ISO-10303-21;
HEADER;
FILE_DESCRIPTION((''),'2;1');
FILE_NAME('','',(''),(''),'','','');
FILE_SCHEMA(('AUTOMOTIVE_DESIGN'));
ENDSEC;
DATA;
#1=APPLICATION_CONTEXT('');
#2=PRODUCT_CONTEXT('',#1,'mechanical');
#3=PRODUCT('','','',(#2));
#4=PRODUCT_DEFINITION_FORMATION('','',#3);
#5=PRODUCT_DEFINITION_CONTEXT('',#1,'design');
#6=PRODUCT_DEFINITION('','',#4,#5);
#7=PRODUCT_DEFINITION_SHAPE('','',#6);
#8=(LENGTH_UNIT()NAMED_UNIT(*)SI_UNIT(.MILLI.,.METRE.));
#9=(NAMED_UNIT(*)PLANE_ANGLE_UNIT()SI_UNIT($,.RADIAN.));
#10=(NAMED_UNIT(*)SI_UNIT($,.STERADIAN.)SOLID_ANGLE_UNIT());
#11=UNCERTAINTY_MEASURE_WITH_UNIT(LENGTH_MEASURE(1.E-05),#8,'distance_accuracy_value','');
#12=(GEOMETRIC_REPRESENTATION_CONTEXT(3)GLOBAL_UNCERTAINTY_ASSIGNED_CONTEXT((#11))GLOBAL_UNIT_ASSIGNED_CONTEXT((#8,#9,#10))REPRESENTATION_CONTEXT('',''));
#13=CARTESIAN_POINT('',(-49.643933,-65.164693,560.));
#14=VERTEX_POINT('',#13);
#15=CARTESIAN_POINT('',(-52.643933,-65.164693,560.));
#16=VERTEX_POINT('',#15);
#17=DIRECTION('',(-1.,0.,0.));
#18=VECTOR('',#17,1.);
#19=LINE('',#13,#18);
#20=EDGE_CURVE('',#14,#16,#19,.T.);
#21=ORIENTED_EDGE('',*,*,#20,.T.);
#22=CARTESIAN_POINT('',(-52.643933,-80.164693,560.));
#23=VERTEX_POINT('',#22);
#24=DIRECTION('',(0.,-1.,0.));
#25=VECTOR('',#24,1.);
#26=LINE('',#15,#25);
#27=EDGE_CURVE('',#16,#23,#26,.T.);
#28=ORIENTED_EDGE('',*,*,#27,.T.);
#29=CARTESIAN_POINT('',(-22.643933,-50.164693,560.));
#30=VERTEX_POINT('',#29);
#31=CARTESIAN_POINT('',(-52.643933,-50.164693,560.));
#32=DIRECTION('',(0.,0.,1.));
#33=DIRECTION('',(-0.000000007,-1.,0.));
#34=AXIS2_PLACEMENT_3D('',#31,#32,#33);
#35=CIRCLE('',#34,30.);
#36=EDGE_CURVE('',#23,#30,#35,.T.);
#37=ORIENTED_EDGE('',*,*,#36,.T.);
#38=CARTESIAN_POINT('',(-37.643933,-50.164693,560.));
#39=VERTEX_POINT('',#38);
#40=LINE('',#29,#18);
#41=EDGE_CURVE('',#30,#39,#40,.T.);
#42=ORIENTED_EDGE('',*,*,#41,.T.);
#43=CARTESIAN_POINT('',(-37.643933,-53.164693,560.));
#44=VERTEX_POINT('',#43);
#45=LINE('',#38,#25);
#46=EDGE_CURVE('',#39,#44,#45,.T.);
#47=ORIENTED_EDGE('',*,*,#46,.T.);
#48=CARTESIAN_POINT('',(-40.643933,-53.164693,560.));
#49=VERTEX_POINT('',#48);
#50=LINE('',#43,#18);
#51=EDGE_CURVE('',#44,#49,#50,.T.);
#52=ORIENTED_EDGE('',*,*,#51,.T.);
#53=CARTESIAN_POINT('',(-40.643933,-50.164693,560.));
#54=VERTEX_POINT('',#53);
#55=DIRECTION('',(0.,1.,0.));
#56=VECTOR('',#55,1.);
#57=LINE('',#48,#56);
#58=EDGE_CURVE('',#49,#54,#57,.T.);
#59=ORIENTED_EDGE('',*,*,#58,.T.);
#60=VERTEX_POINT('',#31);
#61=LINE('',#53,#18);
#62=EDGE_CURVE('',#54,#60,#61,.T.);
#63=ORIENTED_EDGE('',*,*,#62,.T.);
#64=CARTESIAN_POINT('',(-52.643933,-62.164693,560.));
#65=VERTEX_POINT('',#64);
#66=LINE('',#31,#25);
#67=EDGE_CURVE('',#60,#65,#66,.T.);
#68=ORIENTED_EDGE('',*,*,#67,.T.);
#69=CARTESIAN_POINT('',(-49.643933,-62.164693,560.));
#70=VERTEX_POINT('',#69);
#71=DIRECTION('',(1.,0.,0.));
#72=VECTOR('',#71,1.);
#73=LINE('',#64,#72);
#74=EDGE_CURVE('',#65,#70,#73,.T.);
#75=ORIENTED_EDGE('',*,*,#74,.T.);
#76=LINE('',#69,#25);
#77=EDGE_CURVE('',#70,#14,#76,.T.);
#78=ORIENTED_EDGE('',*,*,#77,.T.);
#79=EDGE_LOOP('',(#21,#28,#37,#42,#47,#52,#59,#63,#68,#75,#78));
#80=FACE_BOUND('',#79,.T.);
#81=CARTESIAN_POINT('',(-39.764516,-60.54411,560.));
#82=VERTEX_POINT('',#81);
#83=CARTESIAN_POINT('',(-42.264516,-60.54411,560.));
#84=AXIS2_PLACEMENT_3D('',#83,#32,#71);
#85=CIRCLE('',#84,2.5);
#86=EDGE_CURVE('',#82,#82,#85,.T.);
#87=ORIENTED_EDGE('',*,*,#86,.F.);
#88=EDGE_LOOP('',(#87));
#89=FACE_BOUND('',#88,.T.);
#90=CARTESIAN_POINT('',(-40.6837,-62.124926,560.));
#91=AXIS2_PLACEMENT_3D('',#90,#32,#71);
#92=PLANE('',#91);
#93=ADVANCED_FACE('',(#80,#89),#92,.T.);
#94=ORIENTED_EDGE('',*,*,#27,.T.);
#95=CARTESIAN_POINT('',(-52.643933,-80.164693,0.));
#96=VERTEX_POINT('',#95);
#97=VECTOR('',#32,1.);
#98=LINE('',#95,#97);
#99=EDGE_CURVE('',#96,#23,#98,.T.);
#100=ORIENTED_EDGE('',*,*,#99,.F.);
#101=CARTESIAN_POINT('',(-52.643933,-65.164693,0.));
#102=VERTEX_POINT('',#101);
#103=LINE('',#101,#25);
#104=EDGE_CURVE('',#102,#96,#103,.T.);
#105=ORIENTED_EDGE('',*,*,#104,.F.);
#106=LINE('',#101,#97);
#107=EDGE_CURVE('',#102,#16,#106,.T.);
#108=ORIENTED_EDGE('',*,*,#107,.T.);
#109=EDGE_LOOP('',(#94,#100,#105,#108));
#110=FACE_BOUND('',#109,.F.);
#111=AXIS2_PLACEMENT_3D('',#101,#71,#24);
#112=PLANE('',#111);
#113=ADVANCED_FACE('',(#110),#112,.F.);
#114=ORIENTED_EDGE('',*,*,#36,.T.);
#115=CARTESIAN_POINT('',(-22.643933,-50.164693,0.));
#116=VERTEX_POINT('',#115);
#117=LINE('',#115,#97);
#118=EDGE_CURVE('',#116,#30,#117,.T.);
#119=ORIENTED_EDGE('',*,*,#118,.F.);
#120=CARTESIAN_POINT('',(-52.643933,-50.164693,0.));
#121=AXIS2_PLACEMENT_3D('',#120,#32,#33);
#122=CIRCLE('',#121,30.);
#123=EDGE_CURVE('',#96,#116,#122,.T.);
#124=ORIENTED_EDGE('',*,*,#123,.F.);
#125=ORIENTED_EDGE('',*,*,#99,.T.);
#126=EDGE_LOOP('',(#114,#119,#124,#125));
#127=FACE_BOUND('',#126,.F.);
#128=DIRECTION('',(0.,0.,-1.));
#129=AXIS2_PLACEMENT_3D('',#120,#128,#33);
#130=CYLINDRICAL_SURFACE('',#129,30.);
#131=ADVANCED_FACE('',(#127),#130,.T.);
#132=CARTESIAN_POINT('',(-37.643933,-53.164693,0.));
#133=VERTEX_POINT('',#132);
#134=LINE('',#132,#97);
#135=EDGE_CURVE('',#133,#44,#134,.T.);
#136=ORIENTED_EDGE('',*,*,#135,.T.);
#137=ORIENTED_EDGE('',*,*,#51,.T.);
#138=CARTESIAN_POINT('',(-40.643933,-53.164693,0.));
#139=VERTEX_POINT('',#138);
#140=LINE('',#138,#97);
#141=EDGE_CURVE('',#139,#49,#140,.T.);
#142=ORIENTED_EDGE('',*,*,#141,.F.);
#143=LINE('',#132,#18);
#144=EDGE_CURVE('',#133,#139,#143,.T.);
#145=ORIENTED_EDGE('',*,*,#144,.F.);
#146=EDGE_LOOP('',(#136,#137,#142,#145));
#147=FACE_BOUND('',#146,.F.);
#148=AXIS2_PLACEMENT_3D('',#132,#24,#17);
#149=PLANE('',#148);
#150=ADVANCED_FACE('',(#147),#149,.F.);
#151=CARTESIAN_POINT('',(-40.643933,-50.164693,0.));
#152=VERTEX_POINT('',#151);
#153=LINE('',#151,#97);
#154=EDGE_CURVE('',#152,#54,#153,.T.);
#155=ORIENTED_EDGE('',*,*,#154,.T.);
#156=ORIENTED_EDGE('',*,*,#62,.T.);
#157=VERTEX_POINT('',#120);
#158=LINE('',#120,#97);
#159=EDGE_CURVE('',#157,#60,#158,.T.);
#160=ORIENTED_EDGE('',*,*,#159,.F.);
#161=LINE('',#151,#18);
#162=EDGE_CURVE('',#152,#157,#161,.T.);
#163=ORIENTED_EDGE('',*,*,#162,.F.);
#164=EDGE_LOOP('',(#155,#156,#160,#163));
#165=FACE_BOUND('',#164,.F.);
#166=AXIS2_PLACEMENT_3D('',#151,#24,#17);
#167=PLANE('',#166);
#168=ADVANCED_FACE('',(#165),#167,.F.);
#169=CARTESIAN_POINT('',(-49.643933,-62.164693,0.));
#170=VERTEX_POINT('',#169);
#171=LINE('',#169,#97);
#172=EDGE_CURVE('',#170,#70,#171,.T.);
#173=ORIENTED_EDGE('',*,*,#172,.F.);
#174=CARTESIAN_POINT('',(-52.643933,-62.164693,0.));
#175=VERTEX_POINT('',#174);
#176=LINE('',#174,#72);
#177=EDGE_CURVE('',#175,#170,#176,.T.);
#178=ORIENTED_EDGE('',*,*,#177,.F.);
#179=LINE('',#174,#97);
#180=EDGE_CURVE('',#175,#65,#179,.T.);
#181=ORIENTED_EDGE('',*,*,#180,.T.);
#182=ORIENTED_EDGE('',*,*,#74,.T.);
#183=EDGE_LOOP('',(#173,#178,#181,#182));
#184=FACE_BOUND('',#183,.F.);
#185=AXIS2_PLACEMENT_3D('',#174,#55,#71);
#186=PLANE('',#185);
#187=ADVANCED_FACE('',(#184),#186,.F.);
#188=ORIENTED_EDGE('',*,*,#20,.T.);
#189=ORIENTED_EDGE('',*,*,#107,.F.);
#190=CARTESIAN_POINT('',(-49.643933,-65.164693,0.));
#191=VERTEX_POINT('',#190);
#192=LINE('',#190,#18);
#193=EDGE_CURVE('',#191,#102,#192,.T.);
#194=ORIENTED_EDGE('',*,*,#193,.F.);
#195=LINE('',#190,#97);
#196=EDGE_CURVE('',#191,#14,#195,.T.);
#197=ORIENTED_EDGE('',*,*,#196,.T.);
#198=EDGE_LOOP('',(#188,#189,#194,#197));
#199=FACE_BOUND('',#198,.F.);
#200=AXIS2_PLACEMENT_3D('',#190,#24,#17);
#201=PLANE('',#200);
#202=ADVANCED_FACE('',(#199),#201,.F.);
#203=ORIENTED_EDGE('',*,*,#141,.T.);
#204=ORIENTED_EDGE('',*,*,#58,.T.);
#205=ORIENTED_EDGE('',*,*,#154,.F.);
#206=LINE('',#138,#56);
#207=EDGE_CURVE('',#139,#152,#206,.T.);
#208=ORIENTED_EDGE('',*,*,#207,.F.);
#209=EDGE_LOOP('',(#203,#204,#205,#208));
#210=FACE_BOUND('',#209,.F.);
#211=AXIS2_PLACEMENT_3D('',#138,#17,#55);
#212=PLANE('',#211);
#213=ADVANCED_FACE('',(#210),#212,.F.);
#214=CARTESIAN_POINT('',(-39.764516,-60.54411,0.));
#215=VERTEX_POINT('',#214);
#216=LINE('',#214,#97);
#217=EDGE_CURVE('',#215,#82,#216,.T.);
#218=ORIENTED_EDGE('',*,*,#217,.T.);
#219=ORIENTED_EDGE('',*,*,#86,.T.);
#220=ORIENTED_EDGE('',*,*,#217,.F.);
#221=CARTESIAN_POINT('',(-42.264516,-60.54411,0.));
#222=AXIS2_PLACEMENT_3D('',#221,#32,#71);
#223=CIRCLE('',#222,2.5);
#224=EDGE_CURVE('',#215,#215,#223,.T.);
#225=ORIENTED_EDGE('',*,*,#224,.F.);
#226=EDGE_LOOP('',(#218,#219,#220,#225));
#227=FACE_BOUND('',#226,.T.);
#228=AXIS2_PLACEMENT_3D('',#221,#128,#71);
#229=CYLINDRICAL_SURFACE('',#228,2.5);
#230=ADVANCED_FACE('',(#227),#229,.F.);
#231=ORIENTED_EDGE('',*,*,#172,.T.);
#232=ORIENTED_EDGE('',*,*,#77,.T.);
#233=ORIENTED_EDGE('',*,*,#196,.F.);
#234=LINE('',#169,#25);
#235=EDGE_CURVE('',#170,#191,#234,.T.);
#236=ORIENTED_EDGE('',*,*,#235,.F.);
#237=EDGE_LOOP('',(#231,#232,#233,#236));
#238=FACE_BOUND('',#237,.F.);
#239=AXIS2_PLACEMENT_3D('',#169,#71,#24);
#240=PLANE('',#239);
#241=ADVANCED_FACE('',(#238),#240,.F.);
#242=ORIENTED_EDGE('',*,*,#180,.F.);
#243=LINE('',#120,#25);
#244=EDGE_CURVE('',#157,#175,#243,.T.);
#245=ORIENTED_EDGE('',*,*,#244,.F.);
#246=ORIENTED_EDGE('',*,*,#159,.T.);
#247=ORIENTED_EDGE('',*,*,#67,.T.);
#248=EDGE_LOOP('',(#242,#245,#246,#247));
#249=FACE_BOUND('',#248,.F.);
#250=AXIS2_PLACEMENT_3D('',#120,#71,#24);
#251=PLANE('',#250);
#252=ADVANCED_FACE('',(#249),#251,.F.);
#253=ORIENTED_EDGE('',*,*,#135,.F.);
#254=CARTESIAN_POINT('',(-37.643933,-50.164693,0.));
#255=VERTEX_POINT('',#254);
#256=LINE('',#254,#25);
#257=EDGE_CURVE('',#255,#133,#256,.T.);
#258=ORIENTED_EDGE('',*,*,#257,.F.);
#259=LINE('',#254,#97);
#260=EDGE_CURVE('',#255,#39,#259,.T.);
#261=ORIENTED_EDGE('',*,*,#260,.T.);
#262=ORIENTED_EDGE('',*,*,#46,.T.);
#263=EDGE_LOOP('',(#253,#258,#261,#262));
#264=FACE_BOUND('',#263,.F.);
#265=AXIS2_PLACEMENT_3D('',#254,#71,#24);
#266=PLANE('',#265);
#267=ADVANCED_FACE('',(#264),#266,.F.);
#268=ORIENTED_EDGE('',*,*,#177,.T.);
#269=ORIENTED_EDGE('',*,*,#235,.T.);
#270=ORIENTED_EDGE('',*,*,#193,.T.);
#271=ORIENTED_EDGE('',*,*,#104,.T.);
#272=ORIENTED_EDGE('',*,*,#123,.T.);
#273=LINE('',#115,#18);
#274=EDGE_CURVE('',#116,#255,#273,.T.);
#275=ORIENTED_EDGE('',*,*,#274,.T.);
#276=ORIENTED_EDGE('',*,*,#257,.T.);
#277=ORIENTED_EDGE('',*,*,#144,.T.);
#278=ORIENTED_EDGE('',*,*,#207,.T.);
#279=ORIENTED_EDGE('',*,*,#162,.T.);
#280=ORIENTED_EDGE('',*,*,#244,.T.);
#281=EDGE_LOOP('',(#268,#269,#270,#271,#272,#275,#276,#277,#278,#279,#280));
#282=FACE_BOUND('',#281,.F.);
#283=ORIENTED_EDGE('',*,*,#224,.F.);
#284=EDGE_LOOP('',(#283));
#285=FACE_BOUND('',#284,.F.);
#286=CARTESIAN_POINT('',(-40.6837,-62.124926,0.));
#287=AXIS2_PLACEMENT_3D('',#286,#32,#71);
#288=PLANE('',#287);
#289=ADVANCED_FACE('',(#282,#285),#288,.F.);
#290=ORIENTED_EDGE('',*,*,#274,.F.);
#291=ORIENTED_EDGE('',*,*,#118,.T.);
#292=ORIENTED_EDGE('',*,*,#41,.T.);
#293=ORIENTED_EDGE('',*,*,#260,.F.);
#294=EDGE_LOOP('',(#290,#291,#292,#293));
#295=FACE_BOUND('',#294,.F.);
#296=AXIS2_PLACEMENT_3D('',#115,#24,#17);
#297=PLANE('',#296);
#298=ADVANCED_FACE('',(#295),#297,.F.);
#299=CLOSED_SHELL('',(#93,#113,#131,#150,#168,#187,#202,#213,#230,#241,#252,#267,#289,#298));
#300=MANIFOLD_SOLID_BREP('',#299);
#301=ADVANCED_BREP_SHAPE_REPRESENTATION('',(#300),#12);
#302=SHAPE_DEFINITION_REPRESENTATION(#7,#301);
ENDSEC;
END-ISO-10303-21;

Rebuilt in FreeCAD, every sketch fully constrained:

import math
import FreeCAD as App
import Part
import Sketcher
from FreeCAD import Vector

doc = App.newDocument("Part")
params = doc.addObject("Spreadsheet::Sheet", "Params")
for row, (alias, value) in enumerate([
    ("sketch1_diameter", "5 mm"),
    ("sketch1_radius", "30 mm"),
    ("sketch1_width", "12 mm"),
    ("sketch1_width2", "3 mm"),
    ("pad1_length", "560 mm"),
], start=1):
    params.set(f"A{row}", alias)
    params.set(f"B{row}", "=" + value)
    params.setAlias(f"B{row}", alias)

body = doc.addObject("PartDesign::Body", "Body")

sketch1 = body.newObject("Sketcher::SketchObject", "Sketch")
sketch1.AttachmentSupport = (doc.getObject("XY_Plane"), [""])
sketch1.MapMode = "FlatFace"
sketch1.addGeometry([
    Part.LineSegment(Vector(-40.6, -50.2, 0), Vector(-52.6, -50.2, 0)),
    Part.LineSegment(Vector(-52.6, -50.2, 0), Vector(-52.6, -62.2, 0)),
    Part.LineSegment(Vector(-52.6, -62.2, 0), Vector(-49.6, -62.2, 0)),
    Part.LineSegment(Vector(-49.6, -62.2, 0), Vector(-49.6, -65.2, 0)),
    Part.LineSegment(Vector(-49.6, -65.2, 0), Vector(-52.6, -65.2, 0)),
    Part.LineSegment(Vector(-52.6, -65.2, 0), Vector(-52.6, -80.2, 0)),
    Part.ArcOfCircle(Part.Circle(Vector(-52.6, -50.2, 0), Vector(0, 0, 1), 30), math.radians(-90), math.radians(0)),
    Part.LineSegment(Vector(-22.6, -50.2, 0), Vector(-37.6, -50.2, 0)),
    Part.LineSegment(Vector(-37.6, -50.2, 0), Vector(-37.6, -53.2, 0)),
    Part.LineSegment(Vector(-37.6, -53.2, 0), Vector(-40.6, -53.2, 0)),
    Part.LineSegment(Vector(-40.6, -53.2, 0), Vector(-40.6, -50.2, 0)),
    Part.Circle(Vector(-42.3, -60.5, 0), Vector(0, 0, 1), 2.5),
], False)
sketch1.addConstraint([
    Sketcher.Constraint("Coincident", 0, 2, 1, 1),
    Sketcher.Constraint("Coincident", 1, 2, 2, 1),
    Sketcher.Constraint("Coincident", 2, 2, 3, 1),
    Sketcher.Constraint("Coincident", 3, 2, 4, 1),
    Sketcher.Constraint("Coincident", 4, 2, 5, 1),
    Sketcher.Constraint("Coincident", 5, 2, 6, 1),
    Sketcher.Constraint("Coincident", 6, 2, 7, 1),
    Sketcher.Constraint("Coincident", 7, 2, 8, 1),
    Sketcher.Constraint("Coincident", 8, 2, 9, 1),
    Sketcher.Constraint("Coincident", 9, 2, 10, 1),
    Sketcher.Constraint("Coincident", 10, 2, 0, 1),
    Sketcher.Constraint("Horizontal", 0),
    Sketcher.Constraint("Vertical", 1),
    Sketcher.Constraint("Horizontal", 2),
    Sketcher.Constraint("Vertical", 3),
    Sketcher.Constraint("Horizontal", 4),
    Sketcher.Constraint("Vertical", 5),
    Sketcher.Constraint("Horizontal", 7),
    Sketcher.Constraint("Vertical", 8),
    Sketcher.Constraint("Horizontal", 9),
    Sketcher.Constraint("Vertical", 10),
    Sketcher.Constraint("Coincident", 0, 2, 6, 3),
    Sketcher.Constraint("Horizontal", 0, 2, 6, 2),
    Sketcher.Constraint("Vertical", 1, 2, 4, 2),
    Sketcher.Constraint("Equal", 4, 9),
    Sketcher.Constraint("Equal", 0, 1),
    Sketcher.Constraint("Equal", 9, 3),
    Sketcher.Constraint("Equal", 3, 8),
    Sketcher.Constraint("Diameter", 11, 5.0),
    Sketcher.Constraint("Radius", 6, 30.0),
    Sketcher.Constraint("DistanceX", 0, 2, 0, 1, 12.0),
    Sketcher.Constraint("DistanceX", 2, 1, 2, 2, 3.0),
    Sketcher.Constraint("DistanceY", 11, 3, -1, 1, 60.54411),
    Sketcher.Constraint("DistanceX", 6, 3, -1, 1, 52.643933),
    Sketcher.Constraint("DistanceY", 6, 3, -1, 1, 50.164693),
    Sketcher.Constraint("DistanceX", 11, 3, -1, 1, 42.264516),
])
sketch1.setExpression("Constraints[28]", "Params.sketch1_diameter")
sketch1.setExpression("Constraints[29]", "Params.sketch1_radius")
sketch1.setExpression("Constraints[30]", "Params.sketch1_width")
sketch1.setExpression("Constraints[31]", "Params.sketch1_width2")
pad1 = body.newObject("PartDesign::Pad", "Pad")
pad1.Profile = sketch1
pad1.setExpression("Length", "Params.pad1_length")

doc.recompute()
